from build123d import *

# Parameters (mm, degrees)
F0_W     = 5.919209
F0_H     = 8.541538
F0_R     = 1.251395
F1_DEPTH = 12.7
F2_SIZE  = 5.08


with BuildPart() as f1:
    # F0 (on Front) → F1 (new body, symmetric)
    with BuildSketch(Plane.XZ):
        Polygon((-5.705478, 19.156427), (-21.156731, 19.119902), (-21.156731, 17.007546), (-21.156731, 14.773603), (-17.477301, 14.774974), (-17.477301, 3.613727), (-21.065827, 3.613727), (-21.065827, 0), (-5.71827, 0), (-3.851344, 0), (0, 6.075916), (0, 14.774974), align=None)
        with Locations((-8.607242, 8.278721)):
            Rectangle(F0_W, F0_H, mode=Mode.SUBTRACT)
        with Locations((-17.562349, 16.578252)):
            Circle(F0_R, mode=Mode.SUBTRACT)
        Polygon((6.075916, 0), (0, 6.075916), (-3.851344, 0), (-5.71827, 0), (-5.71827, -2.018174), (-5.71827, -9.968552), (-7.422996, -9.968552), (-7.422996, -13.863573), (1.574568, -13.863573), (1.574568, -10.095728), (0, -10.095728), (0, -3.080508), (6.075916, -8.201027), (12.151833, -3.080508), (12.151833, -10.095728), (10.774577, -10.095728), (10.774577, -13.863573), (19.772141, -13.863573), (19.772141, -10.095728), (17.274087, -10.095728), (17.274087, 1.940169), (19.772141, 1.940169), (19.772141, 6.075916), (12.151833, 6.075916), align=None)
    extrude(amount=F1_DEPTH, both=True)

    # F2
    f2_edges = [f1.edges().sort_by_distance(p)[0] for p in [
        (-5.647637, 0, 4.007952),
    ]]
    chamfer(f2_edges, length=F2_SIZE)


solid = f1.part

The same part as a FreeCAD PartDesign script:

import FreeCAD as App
import Part
import Sketcher
Q = App.Units.Quantity


def edges_at(feature, points):
    """Names of the edges that pass closest to the given points."""
    edges = feature.Shape.Edges
    near = lambda p: min(range(len(edges)), key=lambda i: edges[i].distToShape(Part.Vertex(*p))[0])
    return sorted({f"Edge{near(p) + 1}" for p in points})


def add_polygon(sketch, points):
    """Adds a closed chain of lines whose ends are joined by coincident constraints."""
    first, n = sketch.GeometryCount, len(points)
    for a, b in zip(points, points[1:] + points[:1]):
        sketch.addGeometry(Part.LineSegment(App.Vector(*a, 0), App.Vector(*b, 0)), False)
    for i in range(n):
        sketch.addConstraint(Sketcher.Constraint("Coincident", first + i, 2, first + (i + 1) % n, 1))

doc = App.newDocument("Part")
body = doc.addObject("PartDesign::Body", "Body")

# Sketch on XZ plane
sketch1 = body.newObject("Sketcher::SketchObject", "Sketch")
sketch1.AttachmentSupport = (doc.getObject("XZ_Plane"), [""])
sketch1.MapMode = "FlatFace"
add_polygon(sketch1, [(-5.7, 19.2), (-21.2, 19.1), (-21.2, 14.8), (-17.5, 14.8), (-17.5, 3.6), (-21.1, 3.6), (-21.1, 0), (-5.7, 0), (-5.7, -10), (-7.4, -10), (-7.4, -13.9), (1.6, -13.9), (1.6, -10.1), (0, -10.1), (0, -3.1), (6.1, -8.2), (12.2, -3.1), (12.2, -10.1), (10.8, -10.1), (10.8, -13.9), (19.8, -13.9), (19.8, -10.1), (17.3, -10.1), (17.3, 1.9), (19.8, 1.9), (19.8, 6.1), (12.2, 6.1), (6.1, 0), (0, 6.1), (0, 14.8)])  # lines 0-29
add_polygon(sketch1, [(-5.6, 4), (-11.6, 4), (-11.6, 12.5), (-5.6, 12.5)])  # lines 30-33
sketch1.addGeometry(Part.Circle(App.Vector(-17.6, 16.6, 0), App.Vector(0, 0, 1), 1.3), False)  # 34
sketch1.addConstraint([
    Sketcher.Constraint("Vertical", 1),
    Sketcher.Constraint("Vertical", 3),
    Sketcher.Constraint("Horizontal", 4),
    Sketcher.Constraint("Vertical", 5),
    Sketcher.Constraint("Horizontal", 6),
    Sketcher.Constraint("Vertical", 7),
    Sketcher.Constraint("Horizontal", 8),
    Sketcher.Constraint("Vertical", 9),
    Sketcher.Constraint("Horizontal", 10),
    Sketcher.Constraint("Vertical", 11),
    Sketcher.Constraint("Horizontal", 12),
    Sketcher.Constraint("Vertical", 13),
    Sketcher.Constraint("Vertical", 16),
    Sketcher.Constraint("Horizontal", 17),
    Sketcher.Constraint("Vertical", 18),
    Sketcher.Constraint("Horizontal", 19),
    Sketcher.Constraint("Vertical", 20),
    Sketcher.Constraint("Horizontal", 21),
    Sketcher.Constraint("Vertical", 22),
    Sketcher.Constraint("Horizontal", 23),
    Sketcher.Constraint("Vertical", 24),
    Sketcher.Constraint("Horizontal", 25),
    Sketcher.Constraint("Vertical", 28),
    Sketcher.Constraint("Horizontal", 30),
    Sketcher.Constraint("Vertical", 31),
    Sketcher.Constraint("Horizontal", 32),
    Sketcher.Constraint("Vertical", 33),
    Sketcher.Constraint("PointOnObject", 5, 2, -1),
    Sketcher.Constraint("PointOnObject", 12, 2, -2),
    Sketcher.Constraint("PointOnObject", 26, 2, -1),
    Sketcher.Constraint("PointOnObject", 27, 2, -2),
    Sketcher.Constraint("Perpendicular", 26, 27),
    Sketcher.Constraint("Horizontal", 13, 2, 15, 2),
    Sketcher.Constraint("Horizontal", 12, 2, 16, 2),
    Sketcher.Constraint("Horizontal", 10, 2, 18, 2),
    Sketcher.Constraint("Horizontal", 17, 2, 20, 2),
    Sketcher.Constraint("Horizontal", 25, 2, 27, 2),
    Sketcher.Constraint("Horizontal", 2, 2, 28, 2),
    Sketcher.Constraint("Vertical", 20, 2, 23, 2),
    Sketcher.Constraint("Vertical", 16, 2, 25, 2),
    Sketcher.Constraint("Vertical", 14, 2, 26, 2),
    Sketcher.Constraint("Equal", 10, 19),
    Sketcher.Constraint("Equal", 14, 15),
    Sketcher.Constraint("Diameter", 34, 2.50279),
    Sketcher.Constraint("DistanceY", 1, 2, 1, 1, 4.346299),
    Sketcher.Constraint("DistanceX", 25, 2, 25, 1, 7.620308),
    Sketcher.Constraint("DistanceX", 30, 2, 30, 1, 5.919209),
    Sketcher.Constraint("DistanceY", 9, 2, 9, 1, 3.895021),
    Sketcher.Constraint("DistanceY", 13, 1, 13, 2, 7.01522),
    Sketcher.Constraint("DistanceY", 28, 1, 28, 2, 8.699058),
    Sketcher.Constraint("DistanceY", -1, 1, 0, 2, 19.119902),
    Sketcher.Constraint("DistanceX", 2, 2, -1, 1, 17.477301),
    Sketcher.Constraint("DistanceY", 9, 2, 3, 2, 17.4773),
    Sketcher.Constraint("DistanceY", 11, 2, 14, 2, 1.894701),
    Sketcher.Constraint("Distance", 2, 3.67943),
    Sketcher.Constraint("Distance", 29, 7.19372),
    Sketcher.Constraint("DistanceX", 4, 2, 4, 1, 3.588526),
    Sketcher.Constraint("DistanceX", 6, 1, 6, 2, 15.347557),
    Sketcher.Constraint("DistanceX", 8, 2, 8, 1, 1.704726),
    Sketcher.Constraint("DistanceX", 10, 1, 10, 2, 8.997564),
    Sketcher.Constraint("DistanceX", 21, 2, 21, 1, 2.498054),
    Sketcher.Constraint("DistanceY", 3, 2, 3, 1, 11.161247),
    Sketcher.Constraint("DistanceY", 5, 2, 5, 1, 3.613727),
    Sketcher.Constraint("DistanceY", 11, 1, 11, 2, 3.767845),
    Sketcher.Constraint("DistanceY", 22, 1, 22, 2, 12.035897),
    Sketcher.Constraint("DistanceY", 31, 1, 31, 2, 8.541538),
    Sketcher.Constraint("DistanceX", 34, 3, -1, 1, 17.562349),
    Sketcher.Constraint("DistanceY", -1, 1, 34, 3, 16.578252),
    Sketcher.Constraint("DistanceX", 29, 2, -1, 1, 5.705478),
    Sketcher.Constraint("DistanceY", -1, 1, 31, 2, 12.54949),
    Sketcher.Constraint("DistanceX", 4, 2, 30, 2, 9.49898),
])
pad1 = body.newObject("PartDesign::Pad", "Pad")
pad1.Profile = sketch1
pad1.Length = Q("1 in")
pad1.Midplane = True
doc.recompute()

chamfer = body.newObject("PartDesign::Chamfer", "Chamfer")
chamfer.Base = (pad1, edges_at(pad1, [(-5.648, 0, 4.008)]))
chamfer.Size = Q("0.2 in")

doc.recompute()
